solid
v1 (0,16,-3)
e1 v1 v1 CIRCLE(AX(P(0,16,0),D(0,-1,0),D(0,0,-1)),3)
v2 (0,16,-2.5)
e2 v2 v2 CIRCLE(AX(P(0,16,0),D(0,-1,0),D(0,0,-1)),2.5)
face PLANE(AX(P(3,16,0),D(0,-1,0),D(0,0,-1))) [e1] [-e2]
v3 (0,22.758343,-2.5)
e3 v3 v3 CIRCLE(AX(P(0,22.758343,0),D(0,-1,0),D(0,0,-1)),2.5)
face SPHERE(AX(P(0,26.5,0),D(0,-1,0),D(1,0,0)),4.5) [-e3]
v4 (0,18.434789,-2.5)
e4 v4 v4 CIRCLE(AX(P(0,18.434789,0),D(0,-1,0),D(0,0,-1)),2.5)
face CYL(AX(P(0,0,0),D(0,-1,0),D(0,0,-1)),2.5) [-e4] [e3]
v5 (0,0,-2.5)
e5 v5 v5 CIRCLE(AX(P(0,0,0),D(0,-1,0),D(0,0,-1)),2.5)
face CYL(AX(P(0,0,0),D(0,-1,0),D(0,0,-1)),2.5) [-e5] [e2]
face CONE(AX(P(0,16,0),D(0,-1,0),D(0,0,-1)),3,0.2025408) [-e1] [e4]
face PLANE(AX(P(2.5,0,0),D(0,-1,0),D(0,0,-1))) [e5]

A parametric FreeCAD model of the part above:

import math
import FreeCAD as App
import Part
import Sketcher
from FreeCAD import Vector

doc = App.newDocument("Part")
body = doc.addObject("PartDesign::Body", "Body")

sketch1 = body.newObject("Sketcher::SketchObject", "Sketch")
sketch1.AttachmentSupport = (doc.getObject("XY_Plane"), [""])
sketch1.MapMode = "FlatFace"
sketch1.addGeometry([
    Part.LineSegment(Vector(2.5, 18.4, 0), Vector(2.5, 22.8, 0)),
    Part.ArcOfCircle(Part.Circle(Vector(0, 26.5, 0), Vector(0, 0, 1), 4.5), math.radians(-56), math.radians(90)),
    Part.LineSegment(Vector(0, 31, 0), Vector(0, 0, 0)),
    Part.LineSegment(Vector(0, 0, 0), Vector(2.5, 0, 0)),
    Part.LineSegment(Vector(2.5, 0, 0), Vector(2.5, 16, 0)),
    Part.LineSegment(Vector(2.5, 16, 0), Vector(3, 16, 0)),
    Part.LineSegment(Vector(3, 16, 0), Vector(2.5, 18.4, 0)),
], False)
sketch1.addConstraint([
    Sketcher.Constraint("Coincident", 0, 2, 1, 1),
    Sketcher.Constraint("Coincident", 1, 2, 2, 1),
    Sketcher.Constraint("Coincident", 2, 2, 3, 1),
    Sketcher.Constraint("Coincident", 3, 2, 4, 1),
    Sketcher.Constraint("Coincident", 4, 2, 5, 1),
    Sketcher.Constraint("Coincident", 5, 2, 6, 1),
    Sketcher.Constraint("Coincident", 6, 2, 0, 1),
    Sketcher.Constraint("Vertical", 0),
    Sketcher.Constraint("Vertical", 2),
    Sketcher.Constraint("Horizontal", 3),
    Sketcher.Constraint("Vertical", 4),
    Sketcher.Constraint("Horizontal", 5),
    Sketcher.Constraint("Coincident", 2, 2, -1, 1),
    Sketcher.Constraint("PointOnObject", 1, 3, -2),
    Sketcher.Constraint("Vertical", 0, 2, 3, 2),
    Sketcher.Constraint("Radius", 1, 4.5),
    Sketcher.Constraint("DistanceY", 2, 2, 2, 1, 31.0),
    Sketcher.Constraint("DistanceY", 4, 1, 4, 2, 16.0),
    Sketcher.Constraint("DistanceX", 3, 1, 3, 2, 2.5),
    Sketcher.Constraint("DistanceX", 5, 1, 5, 2, 0.5),
    Sketcher.Constraint("DistanceY", 0, 1, 0, 2, 4.323554),
])
revolution = body.newObject("PartDesign::Revolution", "Revolution")
revolution.Profile = sketch1
revolution.ReferenceAxis = (sketch1, ["V_Axis"])
revolution.Angle = 360

doc.recompute()
